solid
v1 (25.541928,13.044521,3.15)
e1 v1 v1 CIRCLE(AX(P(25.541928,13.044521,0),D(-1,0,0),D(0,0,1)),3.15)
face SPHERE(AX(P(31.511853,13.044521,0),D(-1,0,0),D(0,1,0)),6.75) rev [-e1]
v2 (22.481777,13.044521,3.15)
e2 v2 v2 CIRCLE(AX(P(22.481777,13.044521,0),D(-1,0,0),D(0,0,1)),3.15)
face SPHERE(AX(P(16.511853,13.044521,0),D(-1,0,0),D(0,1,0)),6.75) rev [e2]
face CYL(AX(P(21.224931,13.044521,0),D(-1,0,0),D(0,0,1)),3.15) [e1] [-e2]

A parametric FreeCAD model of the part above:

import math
import FreeCAD as App
import Part
import Sketcher
from FreeCAD import Vector
Q = App.Units.Quantity

doc = App.newDocument("Part")
body = doc.addObject("PartDesign::Body", "Body")

# Sketch on XY plane
sketch1 = body.newObject("Sketcher::SketchObject", "Sketch")
sketch1.AttachmentSupport = (doc.getObject("XY_Plane"), [""])
sketch1.MapMode = "FlatFace"
sketch1.addGeometry([
    Part.LineSegment(Vector(23.3, 13, 0), Vector(24.8, 13, 0)),
    Part.ArcOfCircle(Part.Circle(Vector(31.5, 13, 0), Vector(0, 0, 1), 6.8), math.radians(152), math.radians(180)),
    Part.LineSegment(Vector(25.5, 16.2, 0), Vector(22.5, 16.2, 0)),
    Part.ArcOfCircle(Part.Circle(Vector(16.5, 13, 0), Vector(0, 0, 1), 6.7), math.radians(0), math.radians(28)),
], False)
sketch1.addGeometry(Part.LineSegment(Vector(16.5, 13, 0), Vector(31.5, 13, 0)), True)  # axis
sketch1.addConstraint([
    Sketcher.Constraint("Coincident", 0, 2, 1, 2),
    Sketcher.Constraint("Coincident", 1, 1, 2, 1),
    Sketcher.Constraint("Coincident", 2, 2, 3, 2),
    Sketcher.Constraint("Coincident", 3, 1, 0, 1),
    Sketcher.Constraint("Horizontal", 0),
    Sketcher.Constraint("Horizontal", 2),
    Sketcher.Constraint("Horizontal", 4),
    Sketcher.Constraint("Coincident", 4, 1, 3, 3),
    Sketcher.Constraint("Coincident", 4, 2, 1, 3),
    Sketcher.Constraint("Equal", 1, 3),
    Sketcher.Constraint("Horizontal", 3, 3, 0, 2),
    Sketcher.Constraint("DistanceX", 4, 1, 4, 2, Q("15 mm")),
    Sketcher.Constraint("Radius", 1, Q("6.75 mm")),
    Sketcher.Constraint("DistanceY", 0, 2, 1, 1, Q("3.15 mm")),
    Sketcher.Constraint("DistanceY", -1, 1, 1, 3, Q("13.044521 mm")),
    Sketcher.Constraint("DistanceX", -1, 1, 1, 1, Q("25.541928 mm")),
])
revolution = body.newObject("PartDesign::Revolution", "Revolution")
revolution.Profile = sketch1
revolution.ReferenceAxis = (sketch1, ["Axis0"])
revolution.Angle = 360

doc.recompute()
